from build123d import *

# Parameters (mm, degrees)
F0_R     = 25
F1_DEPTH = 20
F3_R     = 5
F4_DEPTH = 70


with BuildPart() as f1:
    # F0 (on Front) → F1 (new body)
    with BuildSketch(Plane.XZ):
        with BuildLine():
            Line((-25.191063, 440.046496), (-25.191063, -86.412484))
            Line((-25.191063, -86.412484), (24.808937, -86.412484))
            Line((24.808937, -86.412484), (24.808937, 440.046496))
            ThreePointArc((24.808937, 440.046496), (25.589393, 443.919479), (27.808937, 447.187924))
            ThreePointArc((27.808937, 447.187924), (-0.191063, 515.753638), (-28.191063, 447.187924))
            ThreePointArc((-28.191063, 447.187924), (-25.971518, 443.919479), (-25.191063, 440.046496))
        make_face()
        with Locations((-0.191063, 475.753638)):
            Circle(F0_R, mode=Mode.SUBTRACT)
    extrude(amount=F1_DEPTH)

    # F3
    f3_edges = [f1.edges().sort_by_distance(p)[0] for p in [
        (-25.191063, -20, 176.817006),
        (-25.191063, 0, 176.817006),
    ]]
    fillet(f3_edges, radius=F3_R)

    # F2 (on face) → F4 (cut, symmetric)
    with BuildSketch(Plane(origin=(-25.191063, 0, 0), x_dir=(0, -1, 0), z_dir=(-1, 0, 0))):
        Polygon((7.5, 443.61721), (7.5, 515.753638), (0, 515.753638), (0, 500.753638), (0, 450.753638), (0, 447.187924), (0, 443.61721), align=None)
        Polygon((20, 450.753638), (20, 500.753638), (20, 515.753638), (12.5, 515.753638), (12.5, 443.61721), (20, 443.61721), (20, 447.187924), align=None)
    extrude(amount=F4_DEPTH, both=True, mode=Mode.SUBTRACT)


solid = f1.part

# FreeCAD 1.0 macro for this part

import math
import FreeCAD as App
import Part
import Sketcher

V = App.Vector
Q = App.Units.Quantity


def edges_at(feature, points):
    """Names of the edges that pass closest to the given points."""
    edges = feature.Shape.Edges
    near = lambda p: min(range(len(edges)), key=lambda i: edges[i].distToShape(Part.Vertex(*p))[0])
    return sorted({f"Edge{near(p) + 1}" for p in points})


def add_polygon(sketch, points):
    """Adds a closed chain of lines whose ends are joined by coincident constraints."""
    first, n = sketch.GeometryCount, len(points)
    for a, b in zip(points, points[1:] + points[:1]):
        sketch.addGeometry(Part.LineSegment(App.Vector(*a, 0), App.Vector(*b, 0)), False)
    for i in range(n):
        sketch.addConstraint(Sketcher.Constraint("Coincident", first + i, 2, first + (i + 1) % n, 1))

doc = App.newDocument("Part")
body = doc.addObject("PartDesign::Body", "Body")

sketch1 = doc.addObject("Sketcher::SketchObject", "Sketch")
body.addObject(sketch1)
sketch1.AttachmentSupport = (doc.XZ_Plane, [""])
sketch1.MapMode = "FlatFace"
sketch1.addGeometry(Part.LineSegment(V(-25, 440, 0), V(-25, -86, 0)), False)
sketch1.addGeometry(Part.LineSegment(V(-25, -86, 0), V(25, -86, 0)), False)
sketch1.addGeometry(Part.LineSegment(V(25, -86, 0), V(25, 440, 0)), False)
sketch1.addGeometry(Part.ArcOfCircle(Part.Circle(V(35, 440, 0), V(0, 0, 1), 10), math.radians(134), math.radians(180)), False)
sketch1.addGeometry(Part.ArcOfCircle(Part.Circle(V(0, 476, 0), V(0, 0, 1), 40), math.radians(-46), math.radians(226)), False)
sketch1.addGeometry(Part.ArcOfCircle(Part.Circle(V(-35, 440, 0), V(0, 0, 1), 10), math.radians(0), math.radians(46)), False)
sketch1.addGeometry(Part.Circle(V(0, 476, 0), V(0, 0, 1), 25), False)
sketch1.addConstraint(Sketcher.Constraint("Coincident", 0, 2, 1, 1))
sketch1.addConstraint(Sketcher.Constraint("Coincident", 1, 2, 2, 1))
sketch1.addConstraint(Sketcher.Constraint("Tangent", 2, 2, 3, 2))
sketch1.addConstraint(Sketcher.Constraint("Tangent", 3, 1, 4, 1))
sketch1.addConstraint(Sketcher.Constraint("Tangent", 4, 2, 5, 2))
sketch1.addConstraint(Sketcher.Constraint("Tangent", 5, 1, 0, 1))
sketch1.addConstraint(Sketcher.Constraint("Vertical", 0))
sketch1.addConstraint(Sketcher.Constraint("Horizontal", 1))
sketch1.addConstraint(Sketcher.Constraint("Vertical", 2))
sketch1.addConstraint(Sketcher.Constraint("Coincident", 6, 3, 4, 3))
sketch1.addConstraint(Sketcher.Constraint("Horizontal", 3, 1, 4, 2))
sketch1.addConstraint(Sketcher.Constraint("Horizontal", 2, 2, 5, 1))
sketch1.addConstraint(Sketcher.Constraint("Diameter", 6, Q("50 mm")))
sketch1.addConstraint(Sketcher.Constraint("Radius", 4, Q("40 mm")))
sketch1.addConstraint(Sketcher.Constraint("DistanceX", 1, 1, 1, 2, Q("50 mm")))
sketch1.addConstraint(Sketcher.Constraint("DistanceX", 5, 3, 3, 3, Q("69.999998 mm")))
sketch1.addConstraint(Sketcher.Constraint("DistanceY", 0, 2, 0, 1, Q("526.45898 mm")))
sketch1.addConstraint(Sketcher.Constraint("DistanceY", -1, 1, 5, 3, Q("440.046498 mm")))
sketch1.addConstraint(Sketcher.Constraint("DistanceX", -1, 1, 3, 3, Q("34.808942 mm")))
pad1 = doc.addObject("PartDesign::Pad", "Pad")
body.addObject(pad1)
pad1.Profile = sketch1
pad1.Length = 20
doc.recompute()

fillet = doc.addObject("PartDesign::Fillet", "Fillet")
body.addObject(fillet)
fillet.Base = (pad1, edges_at(pad1, [(-25.191, -20, 176.817), (-25.191, 0, 176.817)]))
fillet.Radius = 5

sketch2 = doc.addObject("Sketcher::SketchObject", "Sketch001")
body.addObject(sketch2)
sketch2.AttachmentSupport = (doc.YZ_Plane, [""])
sketch2.MapMode = "FlatFace"
sketch2.AttachmentOffset = App.Placement(V(0, 0, -25.191063), App.Rotation())
add_polygon(sketch2, [(-8, 444), (-8, 516), (0, 516), (0, 444)])
add_polygon(sketch2, [(-20, 516), (-12, 516), (-12, 444), (-20, 444)])
sketch2.addConstraint(Sketcher.Constraint("Vertical", 0))
sketch2.addConstraint(Sketcher.Constraint("Horizontal", 1))
sketch2.addConstraint(Sketcher.Constraint("Vertical", 2))
sketch2.addConstraint(Sketcher.Constraint("Horizontal", 3))
sketch2.addConstraint(Sketcher.Constraint("Horizontal", 4))
sketch2.addConstraint(Sketcher.Constraint("Vertical", 5))
sketch2.addConstraint(Sketcher.Constraint("Horizontal", 6))
sketch2.addConstraint(Sketcher.Constraint("Vertical", 7))
sketch2.addConstraint(Sketcher.Constraint("PointOnObject", 1, 2, -2))
sketch2.addConstraint(Sketcher.Constraint("Horizontal", 1, 2, 4, 2))
sketch2.addConstraint(Sketcher.Constraint("Horizontal", 3, 2, 5, 2))
sketch2.addConstraint(Sketcher.Constraint("Equal", 3, 4))
sketch2.addConstraint(Sketcher.Constraint("DistanceX", 1, 1, 1, 2, Q("7.5 mm")))
sketch2.addConstraint(Sketcher.Constraint("DistanceX", 6, 2, -1, 1, Q("20 mm")))
sketch2.addConstraint(Sketcher.Constraint("DistanceY", 0, 1, 0, 2, Q("72.136428 mm")))
sketch2.addConstraint(Sketcher.Constraint("DistanceY", -1, 1, 0, 2, Q("515.753638 mm")))
pocket1 = doc.addObject("PartDesign::Pocket", "Pocket")
body.addObject(pocket1)
pocket1.Profile = sketch2
pocket1.Length = 140
pocket1.Midplane = True

doc.recompute()
